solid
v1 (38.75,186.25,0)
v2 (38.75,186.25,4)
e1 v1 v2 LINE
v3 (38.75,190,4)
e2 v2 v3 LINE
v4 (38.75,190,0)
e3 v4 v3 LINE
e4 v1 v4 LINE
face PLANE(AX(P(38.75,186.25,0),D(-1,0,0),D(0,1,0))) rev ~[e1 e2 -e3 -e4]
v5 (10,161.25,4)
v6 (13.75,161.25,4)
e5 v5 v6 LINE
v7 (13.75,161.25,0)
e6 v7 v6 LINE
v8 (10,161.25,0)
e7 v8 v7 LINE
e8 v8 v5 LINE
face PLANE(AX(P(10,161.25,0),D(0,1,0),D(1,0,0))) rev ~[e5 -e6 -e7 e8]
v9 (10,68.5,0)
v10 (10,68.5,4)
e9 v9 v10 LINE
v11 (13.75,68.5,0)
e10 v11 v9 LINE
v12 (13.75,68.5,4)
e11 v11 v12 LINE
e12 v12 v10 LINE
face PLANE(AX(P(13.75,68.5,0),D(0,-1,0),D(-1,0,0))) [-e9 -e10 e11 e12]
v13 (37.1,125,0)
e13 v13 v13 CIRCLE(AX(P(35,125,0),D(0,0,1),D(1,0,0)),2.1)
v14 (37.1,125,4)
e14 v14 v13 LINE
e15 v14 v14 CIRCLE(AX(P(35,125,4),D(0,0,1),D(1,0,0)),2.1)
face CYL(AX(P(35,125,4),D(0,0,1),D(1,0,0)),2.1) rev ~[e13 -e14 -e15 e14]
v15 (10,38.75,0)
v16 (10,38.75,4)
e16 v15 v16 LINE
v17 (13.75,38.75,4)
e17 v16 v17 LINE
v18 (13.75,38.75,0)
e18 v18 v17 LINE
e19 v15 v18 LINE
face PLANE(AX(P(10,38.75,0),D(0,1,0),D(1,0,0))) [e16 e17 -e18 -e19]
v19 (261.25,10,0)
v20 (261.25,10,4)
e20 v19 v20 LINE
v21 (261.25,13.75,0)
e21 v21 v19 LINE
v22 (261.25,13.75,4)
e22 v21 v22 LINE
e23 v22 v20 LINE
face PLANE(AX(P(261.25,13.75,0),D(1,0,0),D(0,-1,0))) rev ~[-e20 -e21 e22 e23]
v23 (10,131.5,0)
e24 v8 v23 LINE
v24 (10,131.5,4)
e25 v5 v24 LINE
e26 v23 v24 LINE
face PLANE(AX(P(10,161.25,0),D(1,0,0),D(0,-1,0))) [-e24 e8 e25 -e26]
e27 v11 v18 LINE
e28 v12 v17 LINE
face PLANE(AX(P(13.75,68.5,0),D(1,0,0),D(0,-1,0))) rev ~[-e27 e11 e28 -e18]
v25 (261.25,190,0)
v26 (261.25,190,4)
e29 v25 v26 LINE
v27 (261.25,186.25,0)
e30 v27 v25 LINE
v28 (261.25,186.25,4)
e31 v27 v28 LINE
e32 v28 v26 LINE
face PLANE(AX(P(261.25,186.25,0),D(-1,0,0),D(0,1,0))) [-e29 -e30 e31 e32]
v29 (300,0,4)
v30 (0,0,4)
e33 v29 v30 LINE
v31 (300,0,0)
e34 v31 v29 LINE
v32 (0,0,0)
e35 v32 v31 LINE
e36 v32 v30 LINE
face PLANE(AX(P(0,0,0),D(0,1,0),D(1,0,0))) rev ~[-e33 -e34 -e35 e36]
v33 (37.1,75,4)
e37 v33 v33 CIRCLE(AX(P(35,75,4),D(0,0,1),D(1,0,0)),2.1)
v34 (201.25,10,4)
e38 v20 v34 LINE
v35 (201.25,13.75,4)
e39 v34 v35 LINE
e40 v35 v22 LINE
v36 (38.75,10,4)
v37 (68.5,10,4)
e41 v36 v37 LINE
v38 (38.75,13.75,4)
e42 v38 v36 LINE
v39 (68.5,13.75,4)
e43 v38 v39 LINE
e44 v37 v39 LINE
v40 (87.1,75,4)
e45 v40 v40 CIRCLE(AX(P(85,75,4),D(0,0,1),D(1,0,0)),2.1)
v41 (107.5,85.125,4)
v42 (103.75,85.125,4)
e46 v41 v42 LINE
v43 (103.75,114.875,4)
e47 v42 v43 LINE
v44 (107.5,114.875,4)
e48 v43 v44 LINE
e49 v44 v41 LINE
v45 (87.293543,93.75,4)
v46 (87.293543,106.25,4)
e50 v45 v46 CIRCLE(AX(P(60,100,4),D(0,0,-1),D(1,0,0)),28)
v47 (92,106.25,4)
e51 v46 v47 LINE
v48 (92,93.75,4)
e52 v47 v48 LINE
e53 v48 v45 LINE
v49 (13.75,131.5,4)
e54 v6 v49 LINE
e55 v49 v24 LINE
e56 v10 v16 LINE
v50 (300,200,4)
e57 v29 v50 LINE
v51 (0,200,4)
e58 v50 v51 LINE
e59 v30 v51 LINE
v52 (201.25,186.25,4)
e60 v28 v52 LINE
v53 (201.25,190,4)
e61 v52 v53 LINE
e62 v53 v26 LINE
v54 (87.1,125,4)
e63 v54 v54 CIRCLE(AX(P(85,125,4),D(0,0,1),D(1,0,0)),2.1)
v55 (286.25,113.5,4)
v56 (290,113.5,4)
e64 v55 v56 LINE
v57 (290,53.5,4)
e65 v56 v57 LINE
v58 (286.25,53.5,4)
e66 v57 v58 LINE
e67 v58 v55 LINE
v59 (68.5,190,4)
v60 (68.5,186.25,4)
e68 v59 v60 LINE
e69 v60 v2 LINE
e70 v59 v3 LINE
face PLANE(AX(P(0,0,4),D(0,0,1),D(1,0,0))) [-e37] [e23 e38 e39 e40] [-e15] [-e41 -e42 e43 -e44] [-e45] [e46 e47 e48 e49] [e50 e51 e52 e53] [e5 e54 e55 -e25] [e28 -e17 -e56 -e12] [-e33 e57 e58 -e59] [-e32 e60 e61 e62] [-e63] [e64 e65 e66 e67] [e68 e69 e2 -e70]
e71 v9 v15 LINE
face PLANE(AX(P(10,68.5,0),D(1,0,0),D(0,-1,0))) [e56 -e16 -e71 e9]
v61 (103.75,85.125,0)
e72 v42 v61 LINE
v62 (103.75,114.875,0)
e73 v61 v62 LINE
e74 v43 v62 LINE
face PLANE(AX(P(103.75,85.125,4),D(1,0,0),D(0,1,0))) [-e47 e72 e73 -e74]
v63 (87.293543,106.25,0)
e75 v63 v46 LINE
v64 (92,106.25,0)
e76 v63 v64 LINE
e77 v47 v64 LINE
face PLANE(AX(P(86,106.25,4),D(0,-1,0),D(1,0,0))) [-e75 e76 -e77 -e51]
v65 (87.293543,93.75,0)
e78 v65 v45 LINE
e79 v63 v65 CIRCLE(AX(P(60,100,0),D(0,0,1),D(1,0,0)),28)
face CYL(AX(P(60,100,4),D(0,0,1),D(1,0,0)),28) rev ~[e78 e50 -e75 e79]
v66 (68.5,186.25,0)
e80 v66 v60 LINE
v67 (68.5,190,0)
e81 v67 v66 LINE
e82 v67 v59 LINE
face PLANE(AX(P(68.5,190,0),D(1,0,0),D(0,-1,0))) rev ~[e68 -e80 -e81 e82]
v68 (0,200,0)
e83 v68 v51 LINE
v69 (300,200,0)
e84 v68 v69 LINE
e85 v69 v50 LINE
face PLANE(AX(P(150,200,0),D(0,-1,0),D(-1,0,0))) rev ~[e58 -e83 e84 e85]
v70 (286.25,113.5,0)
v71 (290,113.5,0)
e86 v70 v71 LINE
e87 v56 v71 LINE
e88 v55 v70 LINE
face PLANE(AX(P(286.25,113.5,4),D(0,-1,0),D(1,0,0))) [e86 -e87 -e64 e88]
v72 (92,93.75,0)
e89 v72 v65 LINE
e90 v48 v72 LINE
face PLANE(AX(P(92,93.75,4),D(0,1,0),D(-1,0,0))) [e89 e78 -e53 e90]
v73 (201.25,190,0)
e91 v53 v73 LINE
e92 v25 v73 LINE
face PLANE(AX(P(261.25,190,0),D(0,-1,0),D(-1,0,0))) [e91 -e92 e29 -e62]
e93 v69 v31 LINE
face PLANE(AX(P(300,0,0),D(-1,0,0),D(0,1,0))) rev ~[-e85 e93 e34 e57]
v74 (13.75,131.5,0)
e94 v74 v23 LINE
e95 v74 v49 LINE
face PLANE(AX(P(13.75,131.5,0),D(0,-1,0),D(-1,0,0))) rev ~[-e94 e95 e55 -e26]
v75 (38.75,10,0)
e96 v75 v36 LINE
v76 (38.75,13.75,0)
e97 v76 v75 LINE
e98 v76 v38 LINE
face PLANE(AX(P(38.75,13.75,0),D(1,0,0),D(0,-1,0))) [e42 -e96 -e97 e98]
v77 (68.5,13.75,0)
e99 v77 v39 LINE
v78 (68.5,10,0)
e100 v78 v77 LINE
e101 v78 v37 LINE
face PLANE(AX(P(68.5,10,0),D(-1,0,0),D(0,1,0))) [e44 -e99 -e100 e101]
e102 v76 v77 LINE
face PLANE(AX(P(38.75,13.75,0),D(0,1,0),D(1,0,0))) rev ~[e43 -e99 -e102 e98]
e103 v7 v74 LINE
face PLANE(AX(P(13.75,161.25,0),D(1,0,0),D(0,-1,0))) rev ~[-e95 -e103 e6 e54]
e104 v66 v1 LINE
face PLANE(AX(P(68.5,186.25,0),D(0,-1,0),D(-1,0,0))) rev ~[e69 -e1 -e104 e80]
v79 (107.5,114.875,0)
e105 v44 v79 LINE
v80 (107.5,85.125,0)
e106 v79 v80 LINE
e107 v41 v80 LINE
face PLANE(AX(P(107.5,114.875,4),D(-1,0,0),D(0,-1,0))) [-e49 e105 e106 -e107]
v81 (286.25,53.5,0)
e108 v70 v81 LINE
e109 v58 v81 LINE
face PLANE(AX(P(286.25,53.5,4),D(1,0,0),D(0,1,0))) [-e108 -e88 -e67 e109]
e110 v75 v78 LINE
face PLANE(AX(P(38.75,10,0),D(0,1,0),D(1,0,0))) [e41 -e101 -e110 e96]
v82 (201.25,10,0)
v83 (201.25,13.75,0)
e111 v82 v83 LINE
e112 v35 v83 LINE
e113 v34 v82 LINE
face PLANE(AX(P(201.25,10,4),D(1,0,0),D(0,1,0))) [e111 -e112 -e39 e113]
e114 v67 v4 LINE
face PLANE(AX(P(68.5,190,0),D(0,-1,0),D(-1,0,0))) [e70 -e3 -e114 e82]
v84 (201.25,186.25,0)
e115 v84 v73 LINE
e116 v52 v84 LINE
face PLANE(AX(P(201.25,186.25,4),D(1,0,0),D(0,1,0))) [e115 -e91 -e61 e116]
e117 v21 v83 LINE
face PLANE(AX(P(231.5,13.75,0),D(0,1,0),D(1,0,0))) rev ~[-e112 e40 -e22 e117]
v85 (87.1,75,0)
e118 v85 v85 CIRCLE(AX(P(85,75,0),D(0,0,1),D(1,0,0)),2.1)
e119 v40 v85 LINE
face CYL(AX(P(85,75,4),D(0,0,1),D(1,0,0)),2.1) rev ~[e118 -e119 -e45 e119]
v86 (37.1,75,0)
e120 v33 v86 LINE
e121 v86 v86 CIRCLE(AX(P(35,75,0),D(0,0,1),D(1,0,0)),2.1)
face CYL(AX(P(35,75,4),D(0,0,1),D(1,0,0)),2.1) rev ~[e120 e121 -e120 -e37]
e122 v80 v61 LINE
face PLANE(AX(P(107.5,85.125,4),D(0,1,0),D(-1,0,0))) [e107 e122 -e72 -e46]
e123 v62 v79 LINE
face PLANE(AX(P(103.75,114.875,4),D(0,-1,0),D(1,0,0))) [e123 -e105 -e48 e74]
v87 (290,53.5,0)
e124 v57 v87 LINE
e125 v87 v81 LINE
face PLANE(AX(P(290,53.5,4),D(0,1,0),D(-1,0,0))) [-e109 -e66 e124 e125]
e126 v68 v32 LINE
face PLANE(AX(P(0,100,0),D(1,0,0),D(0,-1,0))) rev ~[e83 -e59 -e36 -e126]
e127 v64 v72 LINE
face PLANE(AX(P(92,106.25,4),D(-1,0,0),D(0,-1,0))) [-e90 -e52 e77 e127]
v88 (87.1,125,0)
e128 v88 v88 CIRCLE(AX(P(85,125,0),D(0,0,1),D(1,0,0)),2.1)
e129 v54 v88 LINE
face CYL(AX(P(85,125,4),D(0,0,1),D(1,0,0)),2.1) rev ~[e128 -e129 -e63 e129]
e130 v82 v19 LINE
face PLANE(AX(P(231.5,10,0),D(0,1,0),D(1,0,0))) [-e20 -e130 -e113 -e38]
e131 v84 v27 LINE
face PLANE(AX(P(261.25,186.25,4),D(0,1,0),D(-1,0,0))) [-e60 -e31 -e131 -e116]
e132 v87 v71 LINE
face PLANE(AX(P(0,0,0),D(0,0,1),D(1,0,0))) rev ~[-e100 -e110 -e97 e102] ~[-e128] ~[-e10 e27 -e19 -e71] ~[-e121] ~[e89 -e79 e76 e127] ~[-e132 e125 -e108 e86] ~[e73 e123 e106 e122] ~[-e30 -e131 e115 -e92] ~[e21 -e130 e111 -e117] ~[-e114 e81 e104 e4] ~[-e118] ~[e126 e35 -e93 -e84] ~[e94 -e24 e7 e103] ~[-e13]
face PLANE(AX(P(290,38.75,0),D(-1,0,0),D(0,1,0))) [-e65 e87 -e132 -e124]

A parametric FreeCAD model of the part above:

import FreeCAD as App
import Part
import Sketcher

V = App.Vector
Q = App.Units.Quantity

doc = App.newDocument("Part")
body = doc.addObject("PartDesign::Body", "Body")

sketch1 = body.newObject("Sketcher::SketchObject", "Sketch")
sketch1.AttachmentSupport = (doc.getObject("XY_Plane"), [""])
sketch1.MapMode = "FlatFace"
sketch1.addGeometry(Part.LineSegment(V(0, 0, 0), V(300, 0, 0)), False)
sketch1.addGeometry(Part.LineSegment(V(300, 0, 0), V(300, 200, 0)), False)
sketch1.addGeometry(Part.LineSegment(V(300, 200, 0), V(0, 200, 0)), False)
sketch1.addGeometry(Part.LineSegment(V(0, 200, 0), V(0, 0, 0)), False)
sketch1.addGeometry(Part.LineSegment(V(10, 38.8, 0), V(10, 68.5, 0)), False)
sketch1.addGeometry(Part.LineSegment(V(10, 68.5, 0), V(13.8, 68.5, 0)), False)
sketch1.addGeometry(Part.LineSegment(V(13.8, 68.5, 0), V(13.8, 38.8, 0)), False)
sketch1.addGeometry(Part.LineSegment(V(13.8, 38.8, 0), V(10, 38.8, 0)), False)
sketch1.addGeometry(Part.LineSegment(V(68.5, 10, 0), V(38.8, 10, 0)), False)
sketch1.addGeometry(Part.LineSegment(V(38.8, 10, 0), V(38.8, 13.8, 0)), False)
sketch1.addGeometry(Part.LineSegment(V(38.8, 13.8, 0), V(68.5, 13.8, 0)), False)
sketch1.addGeometry(Part.LineSegment(V(68.5, 13.8, 0), V(68.5, 10, 0)), False)
sketch1.addGeometry(Part.LineSegment(V(38.8, 190, 0), V(68.5, 190, 0)), False)
sketch1.addGeometry(Part.LineSegment(V(68.5, 190, 0), V(68.5, 186.2, 0)), False)
sketch1.addGeometry(Part.LineSegment(V(68.5, 186.2, 0), V(38.8, 186.2, 0)), False)
sketch1.addGeometry(Part.LineSegment(V(38.8, 186.2, 0), V(38.8, 190, 0)), False)
sketch1.addGeometry(Part.LineSegment(V(10, 131.5, 0), V(10, 161.2, 0)), False)
sketch1.addGeometry(Part.LineSegment(V(10, 161.2, 0), V(13.8, 161.2, 0)), False)
sketch1.addGeometry(Part.LineSegment(V(13.8, 161.2, 0), V(13.8, 131.5, 0)), False)
sketch1.addGeometry(Part.LineSegment(V(13.8, 131.5, 0), V(10, 131.5, 0)), False)
sketch1.addGeometry(Part.LineSegment(V(261.2, 10, 0), V(231.5, 10, 0)), False)
sketch1.addGeometry(Part.LineSegment(V(231.5, 10, 0), V(231.5, 13.8, 0)), False)
sketch1.addGeometry(Part.LineSegment(V(231.5, 13.8, 0), V(261.2, 13.8, 0)), False)
sketch1.addGeometry(Part.LineSegment(V(261.2, 13.8, 0), V(261.2, 10, 0)), False)
sketch1.addGeometry(Part.LineSegment(V(290, 68.5, 0), V(290, 38.8, 0)), False)
sketch1.addGeometry(Part.LineSegment(V(290, 38.8, 0), V(286.2, 38.8, 0)), False)
sketch1.addGeometry(Part.LineSegment(V(286.2, 38.8, 0), V(286.2, 68.5, 0)), False)
sketch1.addGeometry(Part.LineSegment(V(286.2, 68.5, 0), V(290, 68.5, 0)), False)
sketch1.addGeometry(Part.LineSegment(V(290, 161.2, 0), V(290, 131.5, 0)), False)
sketch1.addGeometry(Part.LineSegment(V(290, 131.5, 0), V(286.2, 131.5, 0)), False)
sketch1.addGeometry(Part.LineSegment(V(286.2, 131.5, 0), V(286.2, 161.2, 0)), False)
sketch1.addGeometry(Part.LineSegment(V(286.2, 161.2, 0), V(290, 161.2, 0)), False)
sketch1.addGeometry(Part.LineSegment(V(231.5, 190, 0), V(261.2, 190, 0)), False)
sketch1.addGeometry(Part.LineSegment(V(261.2, 190, 0), V(261.2, 186.2, 0)), False)
sketch1.addGeometry(Part.LineSegment(V(261.2, 186.2, 0), V(231.5, 186.2, 0)), False)
sketch1.addGeometry(Part.LineSegment(V(231.5, 186.2, 0), V(231.5, 190, 0)), False)
sketch1.addConstraint(Sketcher.Constraint("Coincident", 0, 2, 1, 1))
sketch1.addConstraint(Sketcher.Constraint("Coincident", 1, 2, 2, 1))
sketch1.addConstraint(Sketcher.Constraint("Coincident", 2, 2, 3, 1))
sketch1.addConstraint(Sketcher.Constraint("Coincident", 3, 2, 0, 1))
sketch1.addConstraint(Sketcher.Constraint("Coincident", 4, 2, 5, 1))
sketch1.addConstraint(Sketcher.Constraint("Coincident", 5, 2, 6, 1))
sketch1.addConstraint(Sketcher.Constraint("Coincident", 6, 2, 7, 1))
sketch1.addConstraint(Sketcher.Constraint("Coincident", 7, 2, 4, 1))
sketch1.addConstraint(Sketcher.Constraint("Coincident", 8, 2, 9, 1))
sketch1.addConstraint(Sketcher.Constraint("Coincident", 9, 2, 10, 1))
sketch1.addConstraint(Sketcher.Constraint("Coincident", 10, 2, 11, 1))
sketch1.addConstraint(Sketcher.Constraint("Coincident", 11, 2, 8, 1))
sketch1.addConstraint(Sketcher.Constraint("Coincident", 12, 2, 13, 1))
sketch1.addConstraint(Sketcher.Constraint("Coincident", 13, 2, 14, 1))
sketch1.addConstraint(Sketcher.Constraint("Coincident", 14, 2, 15, 1))
sketch1.addConstraint(Sketcher.Constraint("Coincident", 15, 2, 12, 1))
sketch1.addConstraint(Sketcher.Constraint("Coincident", 16, 2, 17, 1))
sketch1.addConstraint(Sketcher.Constraint("Coincident", 17, 2, 18, 1))
sketch1.addConstraint(Sketcher.Constraint("Coincident", 18, 2, 19, 1))
sketch1.addConstraint(Sketcher.Constraint("Coincident", 19, 2, 16, 1))
sketch1.addConstraint(Sketcher.Constraint("Coincident", 20, 2, 21, 1))
sketch1.addConstraint(Sketcher.Constraint("Coincident", 21, 2, 22, 1))
sketch1.addConstraint(Sketcher.Constraint("Coincident", 22, 2, 23, 1))
sketch1.addConstraint(Sketcher.Constraint("Coincident", 23, 2, 20, 1))
sketch1.addConstraint(Sketcher.Constraint("Coincident", 24, 2, 25, 1))
sketch1.addConstraint(Sketcher.Constraint("Coincident", 25, 2, 26, 1))
sketch1.addConstraint(Sketcher.Constraint("Coincident", 26, 2, 27, 1))
sketch1.addConstraint(Sketcher.Constraint("Coincident", 27, 2, 24, 1))
sketch1.addConstraint(Sketcher.Constraint("Coincident", 28, 2, 29, 1))
sketch1.addConstraint(Sketcher.Constraint("Coincident", 29, 2, 30, 1))
sketch1.addConstraint(Sketcher.Constraint("Coincident", 30, 2, 31, 1))
sketch1.addConstraint(Sketcher.Constraint("Coincident", 31, 2, 28, 1))
sketch1.addConstraint(Sketcher.Constraint("Coincident", 32, 2, 33, 1))
sketch1.addConstraint(Sketcher.Constraint("Coincident", 33, 2, 34, 1))
sketch1.addConstraint(Sketcher.Constraint("Coincident", 34, 2, 35, 1))
sketch1.addConstraint(Sketcher.Constraint("Coincident", 35, 2, 32, 1))
sketch1.addConstraint(Sketcher.Constraint("Horizontal", 0))
sketch1.addConstraint(Sketcher.Constraint("Vertical", 1))
sketch1.addConstraint(Sketcher.Constraint("Horizontal", 2))
sketch1.addConstraint(Sketcher.Constraint("Vertical", 3))
sketch1.addConstraint(Sketcher.Constraint("Vertical", 4))
sketch1.addConstraint(Sketcher.Constraint("Horizontal", 5))
sketch1.addConstraint(Sketcher.Constraint("Vertical", 6))
sketch1.addConstraint(Sketcher.Constraint("Horizontal", 7))
sketch1.addConstraint(Sketcher.Constraint("Horizontal", 8))
sketch1.addConstraint(Sketcher.Constraint("Vertical", 9))
sketch1.addConstraint(Sketcher.Constraint("Horizontal", 10))
sketch1.addConstraint(Sketcher.Constraint("Vertical", 11))
sketch1.addConstraint(Sketcher.Constraint("Horizontal", 12))
sketch1.addConstraint(Sketcher.Constraint("Vertical", 13))
sketch1.addConstraint(Sketcher.Constraint("Horizontal", 14))
sketch1.addConstraint(Sketcher.Constraint("Vertical", 15))
sketch1.addConstraint(Sketcher.Constraint("Vertical", 16))
sketch1.addConstraint(Sketcher.Constraint("Horizontal", 17))
sketch1.addConstraint(Sketcher.Constraint("Vertical", 18))
sketch1.addConstraint(Sketcher.Constraint("Horizontal", 19))
sketch1.addConstraint(Sketcher.Constraint("Horizontal", 20))
sketch1.addConstraint(Sketcher.Constraint("Vertical", 21))
sketch1.addConstraint(Sketcher.Constraint("Horizontal", 22))
sketch1.addConstraint(Sketcher.Constraint("Vertical", 23))
sketch1.addConstraint(Sketcher.Constraint("Vertical", 24))
sketch1.addConstraint(Sketcher.Constraint("Horizontal", 25))
sketch1.addConstraint(Sketcher.Constraint("Vertical", 26))
sketch1.addConstraint(Sketcher.Constraint("Horizontal", 27))
sketch1.addConstraint(Sketcher.Constraint("Vertical", 28))
sketch1.addConstraint(Sketcher.Constraint("Horizontal", 29))
sketch1.addConstraint(Sketcher.Constraint("Vertical", 30))
sketch1.addConstraint(Sketcher.Constraint("Horizontal", 31))
sketch1.addConstraint(Sketcher.Constraint("Horizontal", 32))
sketch1.addConstraint(Sketcher.Constraint("Vertical", 33))
sketch1.addConstraint(Sketcher.Constraint("Horizontal", 34))
sketch1.addConstraint(Sketcher.Constraint("Vertical", 35))
sketch1.addConstraint(Sketcher.Constraint("Coincident", 3, 2, -1, 1))
sketch1.addConstraint(Sketcher.Constraint("Horizontal", 11, 2, 20, 2))
sketch1.addConstraint(Sketcher.Constraint("Horizontal", 10, 2, 21, 2))
sketch1.addConstraint(Sketcher.Constraint("Horizontal", 7, 2, 24, 2))
sketch1.addConstraint(Sketcher.Constraint("Horizontal", 5, 2, 26, 2))
sketch1.addConstraint(Sketcher.Constraint("Horizontal", 19, 2, 28, 2))
sketch1.addConstraint(Sketcher.Constraint("Horizontal", 17, 2, 30, 2))
sketch1.addConstraint(Sketcher.Constraint("Horizontal", 15, 2, 32, 2))
sketch1.addConstraint(Sketcher.Constraint("Horizontal", 14, 2, 33, 2))
sketch1.addConstraint(Sketcher.Constraint("Vertical", 11, 2, 12, 2))
sketch1.addConstraint(Sketcher.Constraint("Vertical", 9, 2, 14, 2))
sketch1.addConstraint(Sketcher.Constraint("Vertical", 7, 2, 16, 2))
sketch1.addConstraint(Sketcher.Constraint("Vertical", 6, 2, 17, 2))
sketch1.addConstraint(Sketcher.Constraint("Vertical", 27, 2, 28, 2))
sketch1.addConstraint(Sketcher.Constraint("Vertical", 26, 2, 29, 2))
sketch1.addConstraint(Sketcher.Constraint("Vertical", 23, 2, 32, 2))
sketch1.addConstraint(Sketcher.Constraint("Vertical", 21, 2, 34, 2))
sketch1.addConstraint(Sketcher.Constraint("Equal", 14, 20))
sketch1.addConstraint(Sketcher.Constraint("Equal", 19, 25))
sketch1.addConstraint(Sketcher.Constraint("Equal", 34, 4))
sketch1.addConstraint(Sketcher.Constraint("Equal", 31, 9))
sketch1.addConstraint(Sketcher.Constraint("Equal", 11, 13))
sketch1.addConstraint(Sketcher.Constraint("Equal", 6, 16))
sketch1.addConstraint(Sketcher.Constraint("DistanceX", 0, 1, 0, 2, Q("300 mm")))
sketch1.addConstraint(Sketcher.Constraint("DistanceY", 1, 1, 1, 2, Q("200 mm")))
sketch1.addConstraint(Sketcher.Constraint("DistanceX", -1, 1, 4, 2, Q("10 mm")))
sketch1.addConstraint(Sketcher.Constraint("DistanceY", -1, 1, 8, 2, Q("10 mm")))
sketch1.addConstraint(Sketcher.Constraint("DistanceX", 6, 2, 8, 2, Q("25 mm")))
sketch1.addConstraint(Sketcher.Constraint("DistanceY", 9, 2, 6, 2, Q("25 mm")))
sketch1.addConstraint(Sketcher.Constraint("DistanceY", 12, 2, 2, 2, Q("10 mm")))
sketch1.addConstraint(Sketcher.Constraint("DistanceY", 16, 2, 14, 2, Q("25 mm")))
sketch1.addConstraint(Sketcher.Constraint("DistanceX", 24, 2, 0, 2, Q("10 mm")))
sketch1.addConstraint(Sketcher.Constraint("DistanceX", 22, 2, 25, 2, Q("25 mm")))
sketch1.addConstraint(Sketcher.Constraint("DistanceX", 5, 1, 5, 2, Q("3.75 mm")))
sketch1.addConstraint(Sketcher.Constraint("DistanceX", 8, 2, 8, 1, Q("29.75 mm")))
pad1 = body.newObject("PartDesign::Pad", "Pad")
pad1.Profile = sketch1
pad1.Length = 4

sketch2 = body.newObject("Sketcher::SketchObject", "Sketch001")
sketch2.AttachmentSupport = (doc.getObject("XY_Plane"), [""])
sketch2.MapMode = "FlatFace"
sketch2.AttachmentOffset = App.Placement(V(0, 0, 4), App.Rotation())
sketch2.addGeometry(Part.Circle(V(60, 100, 0), V(0, 0, 1), 28), False)
sketch2.addGeometry(Part.Circle(V(85, 125, 0), V(0, 0, 1), 2.1), False)
sketch2.addGeometry(Part.Circle(V(35, 125, 0), V(0, 0, 1), 2.1), False)
sketch2.addGeometry(Part.Circle(V(35, 75, 0), V(0, 0, 1), 2.1), False)
sketch2.addGeometry(Part.Circle(V(85, 75, 0), V(0, 0, 1), 2.1), False)
sketch2.addConstraint(Sketcher.Constraint("Equal", 1, 2))
sketch2.addConstraint(Sketcher.Constraint("Equal", 2, 3))
sketch2.addConstraint(Sketcher.Constraint("Equal", 3, 4))
sketch2.addConstraint(Sketcher.Constraint("Horizontal", 1, 3, 2, 3))
sketch2.addConstraint(Sketcher.Constraint("Horizontal", 3, 3, 4, 3))
sketch2.addConstraint(Sketcher.Constraint("Vertical", 2, 3, 3, 3))
sketch2.addConstraint(Sketcher.Constraint("Vertical", 1, 3, 4, 3))
sketch2.addConstraint(Sketcher.Constraint("Diameter", 0, Q("56 mm")))
sketch2.addConstraint(Sketcher.Constraint("Diameter", 1, Q("4.2 mm")))
sketch2.addConstraint(Sketcher.Constraint("DistanceX", -1, 1, 0, 3, Q("60 mm")))
sketch2.addConstraint(Sketcher.Constraint("DistanceY", -1, 1, 0, 3, Q("100 mm")))
sketch2.addConstraint(Sketcher.Constraint("DistanceX", 0, 3, 1, 3, Q("25 mm")))
sketch2.addConstraint(Sketcher.Constraint("DistanceY", 0, 3, 1, 3, Q("25 mm")))
sketch2.addConstraint(Sketcher.Constraint("DistanceX", 2, 3, 0, 3, Q("25 mm")))
sketch2.addConstraint(Sketcher.Constraint("DistanceY", 3, 3, 0, 3, Q("25 mm")))
pocket1 = body.newObject("PartDesign::Pocket", "Pocket")
pocket1.Profile = sketch2
pocket1.Length = 10

sketch3 = body.newObject("Sketcher::SketchObject", "Sketch002")
sketch3.AttachmentSupport = (doc.getObject("XY_Plane"), [""])
sketch3.MapMode = "FlatFace"
sketch3.AttachmentOffset = App.Placement(V(0, 0, 4), App.Rotation())
sketch3.addGeometry(Part.LineSegment(V(107.5, 114.9, 0), V(103.8, 114.9, 0)), False)
sketch3.addGeometry(Part.LineSegment(V(103.8, 114.9, 0), V(103.8, 85.1, 0)), False)
sketch3.addGeometry(Part.LineSegment(V(103.8, 85.1, 0), V(107.5, 85.1, 0)), False)
sketch3.addGeometry(Part.LineSegment(V(107.5, 85.1, 0), V(107.5, 114.9, 0)), False)
sketch3.addConstraint(Sketcher.Constraint("Coincident", 0, 2, 1, 1))
sketch3.addConstraint(Sketcher.Constraint("Coincident", 1, 2, 2, 1))
sketch3.addConstraint(Sketcher.Constraint("Coincident", 2, 2, 3, 1))
sketch3.addConstraint(Sketcher.Constraint("Coincident", 3, 2, 0, 1))
sketch3.addConstraint(Sketcher.Constraint("Horizontal", 0))
sketch3.addConstraint(Sketcher.Constraint("Vertical", 1))
sketch3.addConstraint(Sketcher.Constraint("Horizontal", 2))
sketch3.addConstraint(Sketcher.Constraint("Vertical", 3))
sketch3.addConstraint(Sketcher.Constraint("DistanceX", 0, 2, 0, 1, Q("3.75 mm")))
sketch3.addConstraint(Sketcher.Constraint("DistanceY", 1, 2, 1, 1, Q("29.75 mm")))
sketch3.addConstraint(Sketcher.Constraint("DistanceX", -1, 1, 2, 2, Q("107.5 mm")))
sketch3.addConstraint(Sketcher.Constraint("DistanceY", -1, 1, 0, 2, Q("114.875 mm")))
pocket2 = body.newObject("PartDesign::Pocket", "Pocket001")
pocket2.Profile = sketch3
pocket2.Type = "ThroughAll"

sketch4 = body.newObject("Sketcher::SketchObject", "Sketch003")
sketch4.AttachmentSupport = (doc.getObject("XY_Plane"), [""])
sketch4.MapMode = "FlatFace"
sketch4.AttachmentOffset = App.Placement(V(0, 0, 4), App.Rotation())
sketch4.addGeometry(Part.LineSegment(V(286.2, 53.5, 0), V(286.2, 38.8, 0)), False)
sketch4.addGeometry(Part.LineSegment(V(286.2, 38.8, 0), V(290, 38.8, 0)), False)
sketch4.addGeometry(Part.LineSegment(V(290, 38.8, 0), V(290, 53.5, 0)), False)
sketch4.addGeometry(Part.LineSegment(V(290, 53.5, 0), V(286.2, 53.5, 0)), False)
sketch4.addGeometry(Part.LineSegment(V(286.2, 161.2, 0), V(286.2, 131.5, 0)), False)
sketch4.addGeometry(Part.LineSegment(V(286.2, 131.5, 0), V(290, 131.5, 0)), False)
sketch4.addGeometry(Part.LineSegment(V(290, 131.5, 0), V(290, 161.2, 0)), False)
sketch4.addGeometry(Part.LineSegment(V(290, 161.2, 0), V(286.2, 161.2, 0)), False)
sketch4.addConstraint(Sketcher.Constraint("Coincident", 0, 2, 1, 1))
sketch4.addConstraint(Sketcher.Constraint("Coincident", 1, 2, 2, 1))
sketch4.addConstraint(Sketcher.Constraint("Coincident", 2, 2, 3, 1))
sketch4.addConstraint(Sketcher.Constraint("Coincident", 3, 2, 0, 1))
sketch4.addConstraint(Sketcher.Constraint("Coincident", 4, 2, 5, 1))
sketch4.addConstraint(Sketcher.Constraint("Coincident", 5, 2, 6, 1))
sketch4.addConstraint(Sketcher.Constraint("Coincident", 6, 2, 7, 1))
sketch4.addConstraint(Sketcher.Constraint("Coincident", 7, 2, 4, 1))
sketch4.addConstraint(Sketcher.Constraint("Vertical", 0))
sketch4.addConstraint(Sketcher.Constraint("Horizontal", 1))
sketch4.addConstraint(Sketcher.Constraint("Vertical", 2))
sketch4.addConstraint(Sketcher.Constraint("Horizontal", 3))
sketch4.addConstraint(Sketcher.Constraint("Vertical", 4))
sketch4.addConstraint(Sketcher.Constraint("Horizontal", 5))
sketch4.addConstraint(Sketcher.Constraint("Vertical", 6))
sketch4.addConstraint(Sketcher.Constraint("Horizontal", 7))
sketch4.addConstraint(Sketcher.Constraint("Vertical", 3, 2, 4, 2))
sketch4.addConstraint(Sketcher.Constraint("Vertical", 2, 2, 5, 2))
sketch4.addConstraint(Sketcher.Constraint("DistanceX", -1, 1, 1, 2, Q("290 mm")))
sketch4.addConstraint(Sketcher.Constraint("DistanceY", 3, 2, 4, 2, Q("78 mm")))
sketch4.addConstraint(Sketcher.Constraint("DistanceX", 1, 1, 1, 2, Q("3.75 mm")))
sketch4.addConstraint(Sketcher.Constraint("DistanceY", 0, 2, 0, 1, Q("14.75 mm")))
sketch4.addConstraint(Sketcher.Constraint("DistanceY", 4, 2, 4, 1, Q("29.75 mm")))
sketch4.addConstraint(Sketcher.Constraint("DistanceY", -1, 1, 2, 2, Q("53.5 mm")))
pad2 = body.newObject("PartDesign::Pad", "Pad001")
pad2.Profile = sketch4
pad2.Length = 4
pad2.Reversed = True

sketch5 = body.newObject("Sketcher::SketchObject", "Sketch004")
sketch5.AttachmentSupport = (doc.getObject("XY_Plane"), [""])
sketch5.MapMode = "FlatFace"
sketch5.AttachmentOffset = App.Placement(V(0, 0, 4), App.Rotation())
sketch5.addGeometry(Part.LineSegment(V(286.2, 53.5, 0), V(290, 53.5, 0)), False)
sketch5.addGeometry(Part.LineSegment(V(290, 53.5, 0), V(290, 113.5, 0)), False)
sketch5.addGeometry(Part.LineSegment(V(290, 113.5, 0), V(286.2, 113.5, 0)), False)
sketch5.addGeometry(Part.LineSegment(V(286.2, 113.5, 0), V(286.2, 53.5, 0)), False)
sketch5.addConstraint(Sketcher.Constraint("Coincident", 0, 2, 1, 1))
sketch5.addConstraint(Sketcher.Constraint("Coincident", 1, 2, 2, 1))
sketch5.addConstraint(Sketcher.Constraint("Coincident", 2, 2, 3, 1))
sketch5.addConstraint(Sketcher.Constraint("Coincident", 3, 2, 0, 1))
sketch5.addConstraint(Sketcher.Constraint("Horizontal", 0))
sketch5.addConstraint(Sketcher.Constraint("Vertical", 1))
sketch5.addConstraint(Sketcher.Constraint("Horizontal", 2))
sketch5.addConstraint(Sketcher.Constraint("Vertical", 3))
sketch5.addConstraint(Sketcher.Constraint("DistanceY", 1, 1, 1, 2, Q("60 mm")))
sketch5.addConstraint(Sketcher.Constraint("DistanceX", -1, 1, 0, 2, Q("290 mm")))
sketch5.addConstraint(Sketcher.Constraint("DistanceX", 0, 1, 0, 2, Q("3.75 mm")))
sketch5.addConstraint(Sketcher.Constraint("DistanceY", -1, 1, 0, 2, Q("53.5 mm")))
pocket3 = body.newObject("PartDesign::Pocket", "Pocket002")
pocket3.Profile = sketch5
pocket3.Length = 4

sketch6 = body.newObject("Sketcher::SketchObject", "Sketch005")
sketch6.AttachmentSupport = (doc.getObject("XY_Plane"), [""])
sketch6.MapMode = "FlatFace"
sketch6.AttachmentOffset = App.Placement(V(0, 0, 4), App.Rotation())
sketch6.addGeometry(Part.LineSegment(V(201.2, 186.2, 0), V(261.2, 186.2, 0)), False)
sketch6.addGeometry(Part.LineSegment(V(261.2, 186.2, 0), V(261.2, 190, 0)), False)
sketch6.addGeometry(Part.LineSegment(V(261.2, 190, 0), V(201.2, 190, 0)), False)
sketch6.addGeometry(Part.LineSegment(V(201.2, 190, 0), V(201.2, 186.2, 0)), False)
sketch6.addGeometry(Part.LineSegment(V(261.2, 10, 0), V(261.2, 13.8, 0)), False)
sketch6.addGeometry(Part.LineSegment(V(261.2, 13.8, 0), V(201.2, 13.8, 0)), False)
sketch6.addGeometry(Part.LineSegment(V(201.2, 13.8, 0), V(201.2, 10, 0)), False)
sketch6.addGeometry(Part.LineSegment(V(201.2, 10, 0), V(261.2, 10, 0)), False)
sketch6.addConstraint(Sketcher.Constraint("Coincident", 0, 2, 1, 1))
sketch6.addConstraint(Sketcher.Constraint("Coincident", 1, 2, 2, 1))
sketch6.addConstraint(Sketcher.Constraint("Coincident", 2, 2, 3, 1))
sketch6.addConstraint(Sketcher.Constraint("Coincident", 3, 2, 0, 1))
sketch6.addConstraint(Sketcher.Constraint("Coincident", 4, 2, 5, 1))
sketch6.addConstraint(Sketcher.Constraint("Coincident", 5, 2, 6, 1))
sketch6.addConstraint(Sketcher.Constraint("Coincident", 6, 2, 7, 1))
sketch6.addConstraint(Sketcher.Constraint("Coincident", 7, 2, 4, 1))
sketch6.addConstraint(Sketcher.Constraint("Horizontal", 0))
sketch6.addConstraint(Sketcher.Constraint("Vertical", 1))
sketch6.addConstraint(Sketcher.Constraint("Horizontal", 2))
sketch6.addConstraint(Sketcher.Constraint("Vertical", 3))
sketch6.addConstraint(Sketcher.Constraint("Vertical", 4))
sketch6.addConstraint(Sketcher.Constraint("Horizontal", 5))
sketch6.addConstraint(Sketcher.Constraint("Vertical", 6))
sketch6.addConstraint(Sketcher.Constraint("Horizontal", 7))
sketch6.addConstraint(Sketcher.Constraint("Vertical", 1, 2, 4, 2))
sketch6.addConstraint(Sketcher.Constraint("Vertical", 3, 2, 5, 2))
sketch6.addConstraint(Sketcher.Constraint("Equal", 3, 4))
sketch6.addConstraint(Sketcher.Constraint("DistanceX", 0, 1, 0, 2, Q("60 mm")))
sketch6.addConstraint(Sketcher.Constraint("DistanceY", 1, 1, 1, 2, Q("3.75 mm")))
sketch6.addConstraint(Sketcher.Constraint("DistanceY", -1, 1, 1, 2, Q("190 mm")))
sketch6.addConstraint(Sketcher.Constraint("DistanceY", -1, 1, 6, 2, Q("10 mm")))
sketch6.addConstraint(Sketcher.Constraint("DistanceX", -1, 1, 0, 2, Q("261.25 mm")))
pocket4 = body.newObject("PartDesign::Pocket", "Pocket003")
pocket4.Profile = sketch6
pocket4.Type = "ThroughAll"

sketch7 = body.newObject("Sketcher::SketchObject", "Sketch006")
sketch7.AttachmentSupport = (doc.getObject("XY_Plane"), [""])
sketch7.MapMode = "FlatFace"
sketch7.AttachmentOffset = App.Placement(V(0, 0, 4), App.Rotation())
sketch7.addGeometry(Part.LineSegment(V(92, 106, 0), V(86, 106, 0)), False)
sketch7.addGeometry(Part.LineSegment(V(86, 106, 0), V(86, 94, 0)), False)
sketch7.addGeometry(Part.LineSegment(V(86, 94, 0), V(92, 94, 0)), False)
sketch7.addGeometry(Part.LineSegment(V(92, 94, 0), V(92, 106, 0)), False)
sketch7.addConstraint(Sketcher.Constraint("Coincident", 0, 2, 1, 1))
sketch7.addConstraint(Sketcher.Constraint("Coincident", 1, 2, 2, 1))
sketch7.addConstraint(Sketcher.Constraint("Coincident", 2, 2, 3, 1))
sketch7.addConstraint(Sketcher.Constraint("Coincident", 3, 2, 0, 1))
sketch7.addConstraint(Sketcher.Constraint("Horizontal", 0))
sketch7.addConstraint(Sketcher.Constraint("Vertical", 1))
sketch7.addConstraint(Sketcher.Constraint("Horizontal", 2))
sketch7.addConstraint(Sketcher.Constraint("Vertical", 3))
sketch7.addConstraint(Sketcher.Constraint("DistanceX", 0, 2, 0, 1, Q("6 mm")))
sketch7.addConstraint(Sketcher.Constraint("DistanceY", 1, 2, 1, 1, Q("12.5 mm")))
sketch7.addConstraint(Sketcher.Constraint("DistanceX", -1, 1, 2, 2, Q("92 mm")))
sketch7.addConstraint(Sketcher.Constraint("DistanceY", -1, 1, 1, 2, Q("93.75 mm")))
pocket5 = body.newObject("PartDesign::Pocket", "Pocket004")
pocket5.Profile = sketch7
pocket5.Type = "ThroughAll"

doc.recompute()
